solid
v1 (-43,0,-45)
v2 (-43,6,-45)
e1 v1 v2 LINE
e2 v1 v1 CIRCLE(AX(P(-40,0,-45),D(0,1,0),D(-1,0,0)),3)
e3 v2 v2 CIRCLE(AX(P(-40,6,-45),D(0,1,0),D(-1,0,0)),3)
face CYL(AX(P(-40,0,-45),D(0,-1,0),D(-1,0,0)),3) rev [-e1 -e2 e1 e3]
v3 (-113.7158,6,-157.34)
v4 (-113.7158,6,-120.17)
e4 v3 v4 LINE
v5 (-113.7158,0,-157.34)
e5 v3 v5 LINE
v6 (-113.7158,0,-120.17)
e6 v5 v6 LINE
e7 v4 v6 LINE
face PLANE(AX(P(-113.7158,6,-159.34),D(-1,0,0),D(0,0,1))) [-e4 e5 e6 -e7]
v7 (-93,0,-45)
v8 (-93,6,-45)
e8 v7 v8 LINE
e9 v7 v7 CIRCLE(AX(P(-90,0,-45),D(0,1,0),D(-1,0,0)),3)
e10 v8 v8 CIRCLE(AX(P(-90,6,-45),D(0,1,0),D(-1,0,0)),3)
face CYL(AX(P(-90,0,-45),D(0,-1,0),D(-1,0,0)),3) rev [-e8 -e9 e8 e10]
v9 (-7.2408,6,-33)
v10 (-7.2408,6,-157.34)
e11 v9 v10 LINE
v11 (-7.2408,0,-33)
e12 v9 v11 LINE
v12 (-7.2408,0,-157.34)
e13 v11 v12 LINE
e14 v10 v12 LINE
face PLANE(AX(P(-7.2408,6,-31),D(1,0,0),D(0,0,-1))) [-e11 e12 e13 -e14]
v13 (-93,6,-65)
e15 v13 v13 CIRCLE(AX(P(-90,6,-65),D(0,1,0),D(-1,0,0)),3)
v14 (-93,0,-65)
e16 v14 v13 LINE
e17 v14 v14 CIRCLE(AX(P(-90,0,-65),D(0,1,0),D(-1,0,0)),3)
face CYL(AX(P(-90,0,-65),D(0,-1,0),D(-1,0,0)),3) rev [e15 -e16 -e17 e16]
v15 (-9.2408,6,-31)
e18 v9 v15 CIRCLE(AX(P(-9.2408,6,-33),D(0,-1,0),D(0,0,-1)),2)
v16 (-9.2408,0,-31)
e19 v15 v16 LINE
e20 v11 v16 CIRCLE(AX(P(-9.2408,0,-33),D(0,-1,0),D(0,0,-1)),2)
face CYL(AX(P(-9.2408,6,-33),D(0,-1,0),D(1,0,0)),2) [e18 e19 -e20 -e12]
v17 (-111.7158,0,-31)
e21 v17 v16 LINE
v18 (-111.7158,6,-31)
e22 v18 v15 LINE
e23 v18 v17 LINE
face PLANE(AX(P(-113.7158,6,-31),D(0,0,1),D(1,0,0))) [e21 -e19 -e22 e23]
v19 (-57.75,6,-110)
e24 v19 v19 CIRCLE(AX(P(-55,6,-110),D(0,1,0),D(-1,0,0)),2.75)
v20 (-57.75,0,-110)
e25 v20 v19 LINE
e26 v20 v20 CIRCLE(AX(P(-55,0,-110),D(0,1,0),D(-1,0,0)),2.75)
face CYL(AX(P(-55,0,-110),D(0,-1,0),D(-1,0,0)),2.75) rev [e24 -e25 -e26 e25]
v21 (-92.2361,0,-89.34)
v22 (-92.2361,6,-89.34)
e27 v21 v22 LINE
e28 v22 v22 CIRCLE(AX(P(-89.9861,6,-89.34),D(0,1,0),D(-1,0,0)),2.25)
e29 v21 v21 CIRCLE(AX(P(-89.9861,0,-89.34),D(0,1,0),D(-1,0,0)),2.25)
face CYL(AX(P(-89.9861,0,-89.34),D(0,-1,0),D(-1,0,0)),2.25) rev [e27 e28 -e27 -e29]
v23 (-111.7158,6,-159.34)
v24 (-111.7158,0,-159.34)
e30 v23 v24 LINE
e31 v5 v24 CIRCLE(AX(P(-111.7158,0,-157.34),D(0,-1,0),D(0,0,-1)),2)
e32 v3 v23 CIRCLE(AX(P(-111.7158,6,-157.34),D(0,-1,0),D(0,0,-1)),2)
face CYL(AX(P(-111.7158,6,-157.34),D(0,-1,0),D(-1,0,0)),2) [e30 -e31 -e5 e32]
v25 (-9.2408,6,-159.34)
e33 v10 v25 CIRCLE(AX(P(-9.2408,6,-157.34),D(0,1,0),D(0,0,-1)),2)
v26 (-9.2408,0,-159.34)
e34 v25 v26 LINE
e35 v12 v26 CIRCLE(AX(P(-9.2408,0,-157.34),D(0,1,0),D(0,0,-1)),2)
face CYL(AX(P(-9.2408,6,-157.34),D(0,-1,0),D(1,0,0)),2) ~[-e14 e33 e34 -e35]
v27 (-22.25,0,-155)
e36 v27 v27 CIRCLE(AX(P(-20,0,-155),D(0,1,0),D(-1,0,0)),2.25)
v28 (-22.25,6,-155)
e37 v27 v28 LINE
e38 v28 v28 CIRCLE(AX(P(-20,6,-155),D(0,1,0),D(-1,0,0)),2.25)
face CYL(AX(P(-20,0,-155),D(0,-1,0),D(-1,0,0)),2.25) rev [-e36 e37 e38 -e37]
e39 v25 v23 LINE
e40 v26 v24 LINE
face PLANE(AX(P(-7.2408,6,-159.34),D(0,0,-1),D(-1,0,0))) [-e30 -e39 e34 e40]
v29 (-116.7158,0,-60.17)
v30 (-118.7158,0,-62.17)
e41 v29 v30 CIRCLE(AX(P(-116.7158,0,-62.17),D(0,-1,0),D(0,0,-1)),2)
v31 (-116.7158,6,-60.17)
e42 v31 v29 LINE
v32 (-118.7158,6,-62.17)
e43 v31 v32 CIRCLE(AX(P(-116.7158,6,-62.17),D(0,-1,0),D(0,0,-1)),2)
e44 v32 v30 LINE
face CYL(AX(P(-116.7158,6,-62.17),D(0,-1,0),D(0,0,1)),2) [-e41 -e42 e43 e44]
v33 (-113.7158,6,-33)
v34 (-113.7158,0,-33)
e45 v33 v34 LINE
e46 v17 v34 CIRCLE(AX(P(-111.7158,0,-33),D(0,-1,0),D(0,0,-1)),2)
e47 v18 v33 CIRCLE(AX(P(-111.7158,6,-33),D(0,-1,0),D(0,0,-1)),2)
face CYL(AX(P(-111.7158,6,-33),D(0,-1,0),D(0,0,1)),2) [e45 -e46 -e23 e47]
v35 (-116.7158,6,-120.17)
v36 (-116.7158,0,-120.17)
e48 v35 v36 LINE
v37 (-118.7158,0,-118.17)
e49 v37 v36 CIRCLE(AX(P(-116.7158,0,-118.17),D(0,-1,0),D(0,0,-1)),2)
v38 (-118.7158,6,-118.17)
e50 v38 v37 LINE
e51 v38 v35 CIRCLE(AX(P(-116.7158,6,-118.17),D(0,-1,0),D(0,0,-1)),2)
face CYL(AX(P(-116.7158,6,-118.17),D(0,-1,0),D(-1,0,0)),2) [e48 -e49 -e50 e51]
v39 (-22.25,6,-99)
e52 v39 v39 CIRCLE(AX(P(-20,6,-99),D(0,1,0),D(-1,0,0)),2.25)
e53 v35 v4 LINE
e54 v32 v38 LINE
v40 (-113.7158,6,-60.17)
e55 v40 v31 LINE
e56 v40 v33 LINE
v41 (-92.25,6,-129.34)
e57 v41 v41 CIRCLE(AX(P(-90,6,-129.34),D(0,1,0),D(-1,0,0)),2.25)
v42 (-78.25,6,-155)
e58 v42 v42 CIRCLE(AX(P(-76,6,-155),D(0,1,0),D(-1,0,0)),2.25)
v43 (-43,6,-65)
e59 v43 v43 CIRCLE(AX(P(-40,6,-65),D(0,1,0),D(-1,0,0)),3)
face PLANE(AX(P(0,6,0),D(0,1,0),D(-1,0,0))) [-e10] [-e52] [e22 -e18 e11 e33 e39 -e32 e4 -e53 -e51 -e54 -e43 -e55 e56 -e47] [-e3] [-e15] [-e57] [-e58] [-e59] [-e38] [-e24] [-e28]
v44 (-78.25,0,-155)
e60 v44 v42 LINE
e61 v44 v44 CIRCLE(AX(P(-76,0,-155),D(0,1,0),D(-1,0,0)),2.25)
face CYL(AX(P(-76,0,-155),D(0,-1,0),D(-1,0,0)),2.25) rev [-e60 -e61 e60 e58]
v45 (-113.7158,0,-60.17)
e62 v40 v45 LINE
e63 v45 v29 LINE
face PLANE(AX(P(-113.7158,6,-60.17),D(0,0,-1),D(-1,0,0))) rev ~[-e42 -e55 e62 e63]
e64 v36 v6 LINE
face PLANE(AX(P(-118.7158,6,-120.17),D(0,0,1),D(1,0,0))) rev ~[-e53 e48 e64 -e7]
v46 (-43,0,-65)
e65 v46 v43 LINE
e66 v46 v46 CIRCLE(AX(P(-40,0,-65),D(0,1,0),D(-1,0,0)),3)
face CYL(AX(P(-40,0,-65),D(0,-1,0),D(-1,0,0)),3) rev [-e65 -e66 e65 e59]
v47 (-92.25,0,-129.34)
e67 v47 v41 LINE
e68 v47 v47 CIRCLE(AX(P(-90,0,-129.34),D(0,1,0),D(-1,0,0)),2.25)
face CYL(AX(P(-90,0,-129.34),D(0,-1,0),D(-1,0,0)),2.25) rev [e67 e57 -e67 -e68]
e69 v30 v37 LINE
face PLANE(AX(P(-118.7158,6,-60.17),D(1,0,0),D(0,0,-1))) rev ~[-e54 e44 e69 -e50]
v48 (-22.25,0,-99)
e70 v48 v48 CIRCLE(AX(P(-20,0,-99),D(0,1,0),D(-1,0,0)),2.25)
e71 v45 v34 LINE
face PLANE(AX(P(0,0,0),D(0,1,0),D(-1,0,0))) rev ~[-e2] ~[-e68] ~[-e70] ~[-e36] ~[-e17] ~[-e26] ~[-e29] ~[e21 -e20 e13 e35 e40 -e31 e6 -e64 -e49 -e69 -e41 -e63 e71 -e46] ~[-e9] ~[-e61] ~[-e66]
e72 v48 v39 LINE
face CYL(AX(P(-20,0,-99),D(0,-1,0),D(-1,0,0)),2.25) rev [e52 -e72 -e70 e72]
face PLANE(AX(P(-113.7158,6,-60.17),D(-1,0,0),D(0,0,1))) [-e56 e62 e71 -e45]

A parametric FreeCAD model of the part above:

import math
import FreeCAD as App
import Part
import Sketcher

V = App.Vector
Q = App.Units.Quantity


def edges_at(feature, points):
    """Names of the edges that pass closest to the given points."""
    edges = feature.Shape.Edges
    near = lambda p: min(range(len(edges)), key=lambda i: edges[i].distToShape(Part.Vertex(*p))[0])
    return sorted({f"Edge{near(p) + 1}" for p in points})


def add_polygon(sketch, points):
    """Adds a closed chain of lines whose ends are joined by coincident constraints."""
    first, n = sketch.GeometryCount, len(points)
    for a, b in zip(points, points[1:] + points[:1]):
        sketch.addGeometry(Part.LineSegment(App.Vector(*a, 0), App.Vector(*b, 0)), False)
    for i in range(n):
        sketch.addConstraint(Sketcher.Constraint("Coincident", first + i, 2, first + (i + 1) % n, 1))

doc = App.newDocument("Part")
body = doc.addObject("PartDesign::Body", "Body")

sketch1 = body.newObject("Sketcher::SketchObject", "Sketch")
sketch1.AttachmentSupport = (doc.getObject("XZ_Plane"), [""])
sketch1.MapMode = "FlatFace"
sketch1.addGeometry([
    Part.ArcOfCircle(Part.Circle(V(-227.4, -176.6, 0), V(0, 0, 1), 2.8), math.radians(180), math.radians(270)),
    Part.LineSegment(V(-230.2, -176.6, 0), V(-230.2, -3.8, 0)),
    Part.ArcOfCircle(Part.Circle(V(-227.4, -3.8, 0), V(0, 0, 1), 2.8), math.radians(90), math.radians(180)),
    Part.LineSegment(V(-227.4, -1, 0), V(0, -1, 0)),
    Part.ArcOfCircle(Part.Circle(V(0, -3.8, 0), V(0, 0, 1), 2.8), math.radians(0), math.radians(90)),
    Part.LineSegment(V(2.8, -3.8, 0), V(2.8, -176.6, 0)),
    Part.ArcOfCircle(Part.Circle(V(0, -176.6, 0), V(0, 0, 1), 2.8), math.radians(-90), math.radians(0)),
    Part.LineSegment(V(0, -179.3, 0), V(-227.4, -179.3, 0)),
    Part.Circle(V(-20, -155, 0), V(0, 0, 1), 2.2),
    Part.Circle(V(-76, -155, 0), V(0, 0, 1), 2.2),
    Part.Circle(V(-20, -99, 0), V(0, 0, 1), 2.2),
    Part.Circle(V(-90, -129.3, 0), V(0, 0, 1), 2.2),
    Part.Circle(V(-55, -110, 0), V(0, 0, 1), 2.8),
    Part.Circle(V(-130, -129.3, 0), V(0, 0, 1), 2.2),
    Part.Circle(V(-180, -110, 0), V(0, 0, 1), 2.8),
    Part.Circle(V(-40, -65, 0), V(0, 0, 1), 3),
    Part.Circle(V(-40, -45, 0), V(0, 0, 1), 3),
    Part.Circle(V(-90, -89.3, 0), V(0, 0, 1), 2.2),
    Part.Circle(V(-90, -65, 0), V(0, 0, 1), 3),
    Part.Circle(V(-90, -45, 0), V(0, 0, 1), 3),
    Part.Circle(V(-130, -89.3, 0), V(0, 0, 1), 2.2),
    Part.Circle(V(-140, -65, 0), V(0, 0, 1), 3),
    Part.Circle(V(-140, -45, 0), V(0, 0, 1), 3),
    Part.Circle(V(-190, -65, 0), V(0, 0, 1), 3),
    Part.Circle(V(-190, -45, 0), V(0, 0, 1), 3),
], False)
sketch1.addConstraint([
    Sketcher.Constraint("Tangent", 0, 1, 1, 1),
    Sketcher.Constraint("Tangent", 1, 2, 2, 2),
    Sketcher.Constraint("Tangent", 2, 1, 3, 1),
    Sketcher.Constraint("Tangent", 3, 2, 4, 2),
    Sketcher.Constraint("Tangent", 4, 1, 5, 1),
    Sketcher.Constraint("Tangent", 5, 2, 6, 2),
    Sketcher.Constraint("Tangent", 6, 1, 7, 1),
    Sketcher.Constraint("Tangent", 7, 2, 0, 2),
    Sketcher.Constraint("Vertical", 1),
    Sketcher.Constraint("Horizontal", 3),
    Sketcher.Constraint("Vertical", 5),
    Sketcher.Constraint("Horizontal", 7),
    Sketcher.Constraint("Equal", 0, 2),
    Sketcher.Constraint("Equal", 2, 4),
    Sketcher.Constraint("Equal", 4, 6),
    Sketcher.Constraint("Equal", 8, 9),
    Sketcher.Constraint("Equal", 9, 10),
    Sketcher.Constraint("Equal", 10, 11),
    Sketcher.Constraint("Equal", 11, 13),
    Sketcher.Constraint("Equal", 12, 14),
    Sketcher.Constraint("Equal", 15, 16),
    Sketcher.Constraint("Equal", 13, 17),
    Sketcher.Constraint("Equal", 16, 18),
    Sketcher.Constraint("Equal", 18, 19),
    Sketcher.Constraint("Equal", 17, 20),
    Sketcher.Constraint("Equal", 19, 21),
    Sketcher.Constraint("Equal", 21, 22),
    Sketcher.Constraint("Equal", 22, 23),
    Sketcher.Constraint("Equal", 23, 24),
    Sketcher.Constraint("PointOnObject", 4, 3, -2),
    Sketcher.Constraint("Horizontal", 8, 3, 9, 3),
    Sketcher.Constraint("Horizontal", 11, 3, 13, 3),
    Sketcher.Constraint("Horizontal", 12, 3, 14, 3),
    Sketcher.Constraint("Horizontal", 15, 3, 18, 3),
    Sketcher.Constraint("Horizontal", 16, 3, 19, 3),
    Sketcher.Constraint("Horizontal", 17, 3, 20, 3),
    Sketcher.Constraint("Horizontal", 18, 3, 21, 3),
    Sketcher.Constraint("Horizontal", 19, 3, 22, 3),
    Sketcher.Constraint("Horizontal", 21, 3, 23, 3),
    Sketcher.Constraint("Horizontal", 22, 3, 24, 3),
    Sketcher.Constraint("Vertical", 8, 3, 10, 3),
    Sketcher.Constraint("Vertical", 15, 3, 16, 3),
    Sketcher.Constraint("Vertical", 11, 3, 18, 3),
    Sketcher.Constraint("Vertical", 18, 3, 19, 3),
    Sketcher.Constraint("Vertical", 21, 3, 22, 3),
    Sketcher.Constraint("Vertical", 23, 3, 24, 3),
    Sketcher.Constraint("Diameter", 15, Q("6 mm")),
    Sketcher.Constraint("Diameter", 8, Q("4.5 mm")),
    Sketcher.Constraint("Diameter", 12, Q("5.5 mm")),
    Sketcher.Constraint("DistanceX", 8, 3, -1, 1, Q("20 mm")),
    Sketcher.Constraint("DistanceX", 11, 3, -1, 1, Q("90 mm")),
    Sketcher.Constraint("DistanceX", 12, 3, -1, 1, Q("55 mm")),
    Sketcher.Constraint("DistanceY", 12, 3, -1, 1, Q("110 mm")),
    Sketcher.Constraint("DistanceX", 15, 3, -1, 1, Q("40 mm")),
    Sketcher.Constraint("DistanceY", 16, 3, -1, 1, Q("45 mm")),
    Sketcher.Constraint("DistanceY", 2, 1, -1, 1, Q("1 mm")),
    Sketcher.Constraint("DistanceX", 9, 3, 8, 3, Q("56 mm")),
    Sketcher.Constraint("DistanceY", 8, 3, 10, 3, Q("56 mm")),
    Sketcher.Constraint("DistanceY", 9, 3, 12, 3, Q("45 mm")),
    Sketcher.Constraint("DistanceX", 13, 3, 11, 3, Q("40 mm")),
    Sketcher.Constraint("DistanceX", 14, 3, 13, 3, Q("50 mm")),
    Sketcher.Constraint("DistanceY", 12, 3, 15, 3, Q("45 mm")),
    Sketcher.Constraint("DistanceY", 11, 3, 17, 3, Q("40 mm")),
    Sketcher.Constraint("DistanceX", 20, 3, 17, 3, Q("40 mm")),
    Sketcher.Constraint("DistanceX", 21, 3, 18, 3, Q("50 mm")),
    Sketcher.Constraint("DistanceX", 23, 3, 21, 3, Q("50 mm")),
    Sketcher.Constraint("DistanceY", 7, 2, 13, 3, Q("50 mm")),
    Sketcher.Constraint("Radius", 0, Q("2.7592 mm")),
    Sketcher.Constraint("DistanceX", 3, 1, 3, 2, Q("227.4316 mm")),
    Sketcher.Constraint("DistanceY", 1, 1, 1, 2, Q("172.8216 mm")),
    Sketcher.Constraint("DistanceX", 17, 3, -1, 1, Q("89.986 mm")),
])
pad1 = body.newObject("PartDesign::Pad", "Pad")
pad1.Profile = sketch1
pad1.Length = 6
pad1.Reversed = True

sketch2 = body.newObject("Sketcher::SketchObject", "Sketch001")
sketch2.AttachmentSupport = (doc.getObject("XZ_Plane"), [""])
sketch2.MapMode = "FlatFace"
sketch2.AttachmentOffset = App.Placement(V(0, 0, -6), App.Rotation())
sketch2.addGeometry(Part.ArcOfCircle(Part.Circle(V(-227.4, -176.6, 0), V(0, 0, 1), 2.8), math.radians(180), math.radians(270)), False)
sketch2.addGeometry(Part.LineSegment(V(-230.2, -176.6, 0), V(-230.2, -3.8, 0)), False)
sketch2.addGeometry(Part.ArcOfCircle(Part.Circle(V(-227.4, -3.8, 0), V(0, 0, 1), 2.8), math.radians(90), math.radians(180)), False)
sketch2.addGeometry(Part.LineSegment(V(-227.4, -1, 0), V(0, -1, 0)), False)
sketch2.addGeometry(Part.ArcOfCircle(Part.Circle(V(0, -3.8, 0), V(0, 0, 1), 2.8), math.radians(0), math.radians(90)), False)
sketch2.addGeometry(Part.LineSegment(V(2.8, -3.8, 0), V(2.8, -176.6, 0)), False)
sketch2.addGeometry(Part.ArcOfCircle(Part.Circle(V(0, -176.6, 0), V(0, 0, 1), 2.8), math.radians(-90), math.radians(0)), False)
sketch2.addGeometry(Part.LineSegment(V(0, -179.3, 0), V(-227.4, -179.3, 0)), False)
add_polygon(sketch2, [(-113.7, -159.3), (-7.2, -159.3), (-7.2, -31), (-113.7, -31), (-113.7, -60.2), (-118.7, -60.2), (-118.7, -120.2), (-113.7, -120.2)])
sketch2.addConstraint([
    Sketcher.Constraint("Tangent", 0, 1, 1, 1),
    Sketcher.Constraint("Tangent", 1, 2, 2, 2),
    Sketcher.Constraint("Tangent", 2, 1, 3, 1),
    Sketcher.Constraint("Tangent", 3, 2, 4, 2),
    Sketcher.Constraint("Tangent", 4, 1, 5, 1),
    Sketcher.Constraint("Tangent", 5, 2, 6, 2),
    Sketcher.Constraint("Tangent", 6, 1, 7, 1),
    Sketcher.Constraint("Tangent", 7, 2, 0, 2),
    Sketcher.Constraint("Vertical", 1),
    Sketcher.Constraint("Horizontal", 3),
    Sketcher.Constraint("Vertical", 5),
    Sketcher.Constraint("Horizontal", 7),
    Sketcher.Constraint("Horizontal", 8),
    Sketcher.Constraint("Vertical", 9),
    Sketcher.Constraint("Horizontal", 10),
    Sketcher.Constraint("Vertical", 11),
    Sketcher.Constraint("Horizontal", 12),
    Sketcher.Constraint("Vertical", 13),
    Sketcher.Constraint("Horizontal", 14),
    Sketcher.Constraint("Vertical", 15),
    Sketcher.Constraint("Equal", 0, 2),
    Sketcher.Constraint("Equal", 2, 4),
    Sketcher.Constraint("Equal", 4, 6),
    Sketcher.Constraint("PointOnObject", 4, 3, -2),
    Sketcher.Constraint("Vertical", 11, 2, 14, 2),
    Sketcher.Constraint("DistanceY", 13, 2, 13, 1, Q("60 mm")),
    Sketcher.Constraint("DistanceX", 8, 2, 5, 2, Q("10 mm")),
    Sketcher.Constraint("DistanceY", 9, 2, 3, 2, Q("30 mm")),
    Sketcher.Constraint("DistanceX", 12, 2, 12, 1, Q("5 mm")),
    Sketcher.Constraint("DistanceX", 3, 1, 3, 2, Q("227.4316 mm")),
    Sketcher.Constraint("DistanceY", 1, 1, 1, 2, Q("172.8216 mm")),
    Sketcher.Constraint("DistanceY", 2, 1, -1, 1, Q("1 mm")),
    Sketcher.Constraint("DistanceY", 6, 1, 8, 2, Q("20 mm")),
    Sketcher.Constraint("DistanceY", 9, 1, 9, 2, Q("128.34 mm")),
    Sketcher.Constraint("DistanceY", 11, 2, 11, 1, Q("29.17 mm")),
    Sketcher.Constraint("DistanceX", 8, 1, 8, 2, Q("106.475 mm")),
])
pocket1 = body.newObject("PartDesign::Pocket", "Pocket")
pocket1.Profile = sketch2
pocket1.Type = "ThroughAll"
pocket1.Reversed = True
doc.recompute()

fillet = body.newObject("PartDesign::Fillet", "Fillet")
fillet.Base = (pocket1, edges_at(pocket1, [
    (-113.716, 3, -31),
    (-118.716, 3, -60.17),
    (-118.716, 3, -120.17),
    (-7.241, 3, -31),
    (-7.241, 3, -159.34),
    (-113.716, 3, -159.34),
]))
fillet.Radius = 2

doc.recompute()
